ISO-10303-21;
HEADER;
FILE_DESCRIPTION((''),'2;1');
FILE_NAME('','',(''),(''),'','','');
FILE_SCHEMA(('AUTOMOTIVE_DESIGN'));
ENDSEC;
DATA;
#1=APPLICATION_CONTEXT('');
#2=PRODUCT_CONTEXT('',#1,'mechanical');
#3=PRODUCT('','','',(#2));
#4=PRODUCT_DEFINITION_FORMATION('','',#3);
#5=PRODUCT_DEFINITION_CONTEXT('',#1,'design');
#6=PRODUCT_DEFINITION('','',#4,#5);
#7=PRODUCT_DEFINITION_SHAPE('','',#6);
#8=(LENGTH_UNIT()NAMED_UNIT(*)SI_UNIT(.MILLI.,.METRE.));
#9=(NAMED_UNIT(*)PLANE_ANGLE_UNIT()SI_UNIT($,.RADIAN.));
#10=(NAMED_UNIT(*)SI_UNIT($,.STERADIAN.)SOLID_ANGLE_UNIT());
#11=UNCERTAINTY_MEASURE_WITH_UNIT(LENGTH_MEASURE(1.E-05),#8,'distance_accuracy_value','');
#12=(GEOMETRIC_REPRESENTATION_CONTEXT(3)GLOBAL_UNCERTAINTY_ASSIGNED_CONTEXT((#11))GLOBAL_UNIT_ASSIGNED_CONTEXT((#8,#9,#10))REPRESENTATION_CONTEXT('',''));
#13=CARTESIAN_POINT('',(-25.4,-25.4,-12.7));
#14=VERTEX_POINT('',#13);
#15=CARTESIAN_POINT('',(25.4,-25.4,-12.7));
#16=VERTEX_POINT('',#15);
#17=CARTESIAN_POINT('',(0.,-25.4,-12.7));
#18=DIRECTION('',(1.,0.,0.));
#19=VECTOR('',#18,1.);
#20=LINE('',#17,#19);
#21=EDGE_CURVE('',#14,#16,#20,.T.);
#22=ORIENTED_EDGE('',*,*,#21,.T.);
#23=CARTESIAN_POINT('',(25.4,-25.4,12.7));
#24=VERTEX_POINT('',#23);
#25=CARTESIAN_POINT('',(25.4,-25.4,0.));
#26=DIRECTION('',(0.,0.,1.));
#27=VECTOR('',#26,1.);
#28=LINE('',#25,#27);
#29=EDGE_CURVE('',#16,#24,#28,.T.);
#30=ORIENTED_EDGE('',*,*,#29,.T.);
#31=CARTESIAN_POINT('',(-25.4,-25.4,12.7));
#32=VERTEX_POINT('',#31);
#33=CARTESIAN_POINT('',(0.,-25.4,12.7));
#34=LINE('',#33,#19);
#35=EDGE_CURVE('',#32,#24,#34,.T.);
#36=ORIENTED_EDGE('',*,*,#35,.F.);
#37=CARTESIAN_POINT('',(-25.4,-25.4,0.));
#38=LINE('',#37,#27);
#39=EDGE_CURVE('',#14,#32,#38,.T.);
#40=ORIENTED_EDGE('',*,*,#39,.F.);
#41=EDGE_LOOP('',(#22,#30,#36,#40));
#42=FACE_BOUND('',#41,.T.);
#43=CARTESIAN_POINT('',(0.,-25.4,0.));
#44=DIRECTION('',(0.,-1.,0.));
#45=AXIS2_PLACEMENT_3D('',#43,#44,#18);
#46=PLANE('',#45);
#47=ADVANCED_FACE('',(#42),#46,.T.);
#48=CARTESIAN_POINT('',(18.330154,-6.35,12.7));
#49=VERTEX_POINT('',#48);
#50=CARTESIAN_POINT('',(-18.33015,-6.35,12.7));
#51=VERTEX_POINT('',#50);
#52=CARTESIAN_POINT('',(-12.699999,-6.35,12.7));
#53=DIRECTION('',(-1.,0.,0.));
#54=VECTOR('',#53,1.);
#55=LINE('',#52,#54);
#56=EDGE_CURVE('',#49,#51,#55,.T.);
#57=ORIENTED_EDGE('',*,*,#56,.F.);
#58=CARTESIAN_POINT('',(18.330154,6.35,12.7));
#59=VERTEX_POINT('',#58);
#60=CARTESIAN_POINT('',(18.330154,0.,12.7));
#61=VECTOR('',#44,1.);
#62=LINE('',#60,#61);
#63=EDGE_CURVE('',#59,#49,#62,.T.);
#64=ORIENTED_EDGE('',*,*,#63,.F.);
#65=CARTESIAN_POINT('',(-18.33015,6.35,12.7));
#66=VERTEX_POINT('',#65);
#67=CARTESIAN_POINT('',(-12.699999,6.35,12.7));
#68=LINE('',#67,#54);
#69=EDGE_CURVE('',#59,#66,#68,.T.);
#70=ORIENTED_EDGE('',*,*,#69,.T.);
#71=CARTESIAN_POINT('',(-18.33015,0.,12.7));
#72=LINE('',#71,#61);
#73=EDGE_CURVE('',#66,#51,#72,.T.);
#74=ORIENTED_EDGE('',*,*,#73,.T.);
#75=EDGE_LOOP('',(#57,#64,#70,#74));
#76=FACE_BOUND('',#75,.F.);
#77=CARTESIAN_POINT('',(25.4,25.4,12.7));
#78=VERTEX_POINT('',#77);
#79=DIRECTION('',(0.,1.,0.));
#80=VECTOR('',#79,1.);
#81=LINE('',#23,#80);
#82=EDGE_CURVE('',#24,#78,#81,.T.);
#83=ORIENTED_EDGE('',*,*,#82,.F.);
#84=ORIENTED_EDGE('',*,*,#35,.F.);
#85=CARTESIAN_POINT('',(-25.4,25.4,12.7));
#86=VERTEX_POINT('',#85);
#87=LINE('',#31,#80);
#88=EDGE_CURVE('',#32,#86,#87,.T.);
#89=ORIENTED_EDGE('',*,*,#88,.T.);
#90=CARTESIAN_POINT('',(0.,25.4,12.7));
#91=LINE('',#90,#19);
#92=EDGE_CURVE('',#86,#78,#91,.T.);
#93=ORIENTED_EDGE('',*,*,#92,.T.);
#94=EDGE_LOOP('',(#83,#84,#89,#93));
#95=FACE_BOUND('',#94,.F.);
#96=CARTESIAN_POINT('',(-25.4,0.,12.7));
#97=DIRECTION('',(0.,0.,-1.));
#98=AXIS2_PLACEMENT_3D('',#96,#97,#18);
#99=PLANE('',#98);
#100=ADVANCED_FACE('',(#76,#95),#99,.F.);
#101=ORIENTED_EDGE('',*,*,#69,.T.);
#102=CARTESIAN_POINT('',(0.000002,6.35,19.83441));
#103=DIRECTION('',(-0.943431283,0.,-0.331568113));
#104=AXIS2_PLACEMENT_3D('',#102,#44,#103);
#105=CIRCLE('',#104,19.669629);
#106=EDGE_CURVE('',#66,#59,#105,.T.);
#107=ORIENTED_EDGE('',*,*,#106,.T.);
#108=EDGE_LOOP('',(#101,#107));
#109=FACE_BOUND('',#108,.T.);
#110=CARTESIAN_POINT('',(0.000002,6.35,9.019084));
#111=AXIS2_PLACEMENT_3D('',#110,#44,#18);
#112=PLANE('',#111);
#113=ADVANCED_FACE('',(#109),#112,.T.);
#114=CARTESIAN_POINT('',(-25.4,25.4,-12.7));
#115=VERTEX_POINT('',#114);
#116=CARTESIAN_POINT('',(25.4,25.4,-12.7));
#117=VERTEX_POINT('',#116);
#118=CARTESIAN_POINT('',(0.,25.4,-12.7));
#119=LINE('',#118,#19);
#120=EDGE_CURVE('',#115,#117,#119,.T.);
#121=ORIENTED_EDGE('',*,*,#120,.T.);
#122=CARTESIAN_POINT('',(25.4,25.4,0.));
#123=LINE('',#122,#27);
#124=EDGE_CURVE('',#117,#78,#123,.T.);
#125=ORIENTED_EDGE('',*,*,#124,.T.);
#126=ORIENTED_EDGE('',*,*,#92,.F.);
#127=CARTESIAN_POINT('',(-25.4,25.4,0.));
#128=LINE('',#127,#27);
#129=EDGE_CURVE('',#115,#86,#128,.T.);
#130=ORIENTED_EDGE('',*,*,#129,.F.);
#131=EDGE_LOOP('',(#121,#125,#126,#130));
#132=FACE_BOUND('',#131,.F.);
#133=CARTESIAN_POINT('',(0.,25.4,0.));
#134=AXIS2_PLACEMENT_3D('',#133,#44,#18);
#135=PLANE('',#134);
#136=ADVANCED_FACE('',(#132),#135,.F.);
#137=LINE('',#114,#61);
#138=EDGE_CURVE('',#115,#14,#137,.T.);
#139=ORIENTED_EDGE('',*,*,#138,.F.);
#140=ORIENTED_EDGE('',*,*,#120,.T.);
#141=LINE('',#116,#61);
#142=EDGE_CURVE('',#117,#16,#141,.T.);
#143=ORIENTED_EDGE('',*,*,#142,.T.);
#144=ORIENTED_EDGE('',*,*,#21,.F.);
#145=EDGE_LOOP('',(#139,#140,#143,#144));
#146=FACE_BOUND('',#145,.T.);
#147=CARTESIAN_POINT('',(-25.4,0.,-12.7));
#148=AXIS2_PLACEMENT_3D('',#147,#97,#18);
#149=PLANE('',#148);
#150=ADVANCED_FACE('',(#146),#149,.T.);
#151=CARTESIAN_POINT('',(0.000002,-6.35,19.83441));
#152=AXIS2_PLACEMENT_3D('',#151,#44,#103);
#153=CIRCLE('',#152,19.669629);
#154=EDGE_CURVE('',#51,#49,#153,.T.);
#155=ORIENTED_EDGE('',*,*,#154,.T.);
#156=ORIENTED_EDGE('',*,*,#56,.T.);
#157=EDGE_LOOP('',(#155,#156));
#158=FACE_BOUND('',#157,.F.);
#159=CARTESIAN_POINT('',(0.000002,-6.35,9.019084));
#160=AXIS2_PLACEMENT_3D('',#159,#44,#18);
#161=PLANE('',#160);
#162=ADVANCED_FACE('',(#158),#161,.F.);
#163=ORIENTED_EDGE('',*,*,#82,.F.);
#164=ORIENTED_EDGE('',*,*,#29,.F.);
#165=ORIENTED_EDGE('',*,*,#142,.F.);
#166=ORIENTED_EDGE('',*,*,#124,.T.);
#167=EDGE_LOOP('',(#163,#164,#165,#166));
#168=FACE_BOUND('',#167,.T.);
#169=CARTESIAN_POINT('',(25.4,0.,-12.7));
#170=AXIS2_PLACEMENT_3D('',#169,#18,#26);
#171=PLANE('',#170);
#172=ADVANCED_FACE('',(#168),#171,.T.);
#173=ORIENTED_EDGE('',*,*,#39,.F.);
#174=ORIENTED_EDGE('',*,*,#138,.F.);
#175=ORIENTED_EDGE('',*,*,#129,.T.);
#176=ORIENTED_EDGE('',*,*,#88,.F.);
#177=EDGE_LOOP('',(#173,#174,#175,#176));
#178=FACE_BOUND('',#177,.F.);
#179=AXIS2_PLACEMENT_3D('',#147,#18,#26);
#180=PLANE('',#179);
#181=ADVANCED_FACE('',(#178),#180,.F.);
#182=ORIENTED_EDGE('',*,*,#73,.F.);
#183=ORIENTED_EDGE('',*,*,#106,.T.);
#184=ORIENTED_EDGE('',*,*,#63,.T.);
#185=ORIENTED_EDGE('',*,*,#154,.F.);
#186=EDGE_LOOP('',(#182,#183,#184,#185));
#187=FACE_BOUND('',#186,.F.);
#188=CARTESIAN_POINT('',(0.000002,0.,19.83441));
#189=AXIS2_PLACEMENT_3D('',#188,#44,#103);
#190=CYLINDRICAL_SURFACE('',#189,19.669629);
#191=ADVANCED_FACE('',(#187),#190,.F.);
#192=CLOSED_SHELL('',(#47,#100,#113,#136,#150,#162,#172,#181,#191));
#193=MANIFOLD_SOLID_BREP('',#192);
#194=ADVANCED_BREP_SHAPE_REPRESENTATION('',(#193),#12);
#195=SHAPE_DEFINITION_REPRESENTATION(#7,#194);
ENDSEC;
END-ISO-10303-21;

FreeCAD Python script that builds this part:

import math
import FreeCAD as App
import Part
import Sketcher
from FreeCAD import Vector
Q = App.Units.Quantity


def add_polygon(sketch, points):
    """Adds a closed chain of lines whose ends are joined by coincident constraints."""
    first, n = sketch.GeometryCount, len(points)
    for a, b in zip(points, points[1:] + points[:1]):
        sketch.addGeometry(Part.LineSegment(App.Vector(*a, 0), App.Vector(*b, 0)), False)
    for i in range(n):
        sketch.addConstraint(Sketcher.Constraint("Coincident", first + i, 2, first + (i + 1) % n, 1))

doc = App.newDocument("Part")
body = doc.addObject("PartDesign::Body", "Body")

# Sketch on XZ plane
sketch1 = doc.addObject("Sketcher::SketchObject", "Sketch")
body.addObject(sketch1)
sketch1.AttachmentSupport = (doc.XZ_Plane, [""])
sketch1.MapMode = "FlatFace"
add_polygon(sketch1, [(-25, 13), (-25, -13), (25, -13), (25, 13)])  # lines 0-3
sketch1.addConstraint([
    Sketcher.Constraint("Vertical", 0),
    Sketcher.Constraint("Horizontal", 1),
    Sketcher.Constraint("Vertical", 2),
    Sketcher.Constraint("Horizontal", 3),
    Sketcher.Constraint("Symmetric", 0, 2, 2, 2, -1, 1),
    Sketcher.Constraint("DistanceX", 1, 1, 1, 2, Q("2 in")),
    Sketcher.Constraint("DistanceY", 0, 2, 0, 1, Q("1 in")),
])
pad1 = doc.addObject("PartDesign::Pad", "Pad")
body.addObject(pad1)
pad1.Profile = sketch1
pad1.Length = Q("2 in")
pad1.Midplane = True

# Sketch on XZ plane
sketch2 = doc.addObject("Sketcher::SketchObject", "Sketch001")
body.addObject(sketch2)
sketch2.AttachmentSupport = (doc.XZ_Plane, [""])
sketch2.MapMode = "FlatFace"
sketch2.addGeometry([
    Part.LineSegment(Vector(19, 13, 0), Vector(-19, 13, 0)),
    Part.ArcOfCircle(Part.Circle(Vector(0, 20, 0), Vector(0, 0, 1), 20), math.radians(-161), math.radians(-19)),
], False)
sketch2.addConstraint([
    Sketcher.Constraint("Coincident", 0, 1, 1, 2),
    Sketcher.Constraint("Coincident", 1, 1, 0, 2),
    Sketcher.Constraint("Horizontal", 0),
    Sketcher.Constraint("Radius", 1, 19.669629),
    Sketcher.Constraint("DistanceX", 0, 2, 0, 1, 37.113886),
    Sketcher.Constraint("DistanceY", -1, 1, 1, 3, 19.83441),
    Sketcher.Constraint("DistanceX", 1, 1, -1, 1, 18.556941),
])
pocket1 = doc.addObject("PartDesign::Pocket", "Pocket")
body.addObject(pocket1)
pocket1.Profile = sketch2
pocket1.Length = Q("0.5 in")
pocket1.Midplane = True

doc.recompute()
